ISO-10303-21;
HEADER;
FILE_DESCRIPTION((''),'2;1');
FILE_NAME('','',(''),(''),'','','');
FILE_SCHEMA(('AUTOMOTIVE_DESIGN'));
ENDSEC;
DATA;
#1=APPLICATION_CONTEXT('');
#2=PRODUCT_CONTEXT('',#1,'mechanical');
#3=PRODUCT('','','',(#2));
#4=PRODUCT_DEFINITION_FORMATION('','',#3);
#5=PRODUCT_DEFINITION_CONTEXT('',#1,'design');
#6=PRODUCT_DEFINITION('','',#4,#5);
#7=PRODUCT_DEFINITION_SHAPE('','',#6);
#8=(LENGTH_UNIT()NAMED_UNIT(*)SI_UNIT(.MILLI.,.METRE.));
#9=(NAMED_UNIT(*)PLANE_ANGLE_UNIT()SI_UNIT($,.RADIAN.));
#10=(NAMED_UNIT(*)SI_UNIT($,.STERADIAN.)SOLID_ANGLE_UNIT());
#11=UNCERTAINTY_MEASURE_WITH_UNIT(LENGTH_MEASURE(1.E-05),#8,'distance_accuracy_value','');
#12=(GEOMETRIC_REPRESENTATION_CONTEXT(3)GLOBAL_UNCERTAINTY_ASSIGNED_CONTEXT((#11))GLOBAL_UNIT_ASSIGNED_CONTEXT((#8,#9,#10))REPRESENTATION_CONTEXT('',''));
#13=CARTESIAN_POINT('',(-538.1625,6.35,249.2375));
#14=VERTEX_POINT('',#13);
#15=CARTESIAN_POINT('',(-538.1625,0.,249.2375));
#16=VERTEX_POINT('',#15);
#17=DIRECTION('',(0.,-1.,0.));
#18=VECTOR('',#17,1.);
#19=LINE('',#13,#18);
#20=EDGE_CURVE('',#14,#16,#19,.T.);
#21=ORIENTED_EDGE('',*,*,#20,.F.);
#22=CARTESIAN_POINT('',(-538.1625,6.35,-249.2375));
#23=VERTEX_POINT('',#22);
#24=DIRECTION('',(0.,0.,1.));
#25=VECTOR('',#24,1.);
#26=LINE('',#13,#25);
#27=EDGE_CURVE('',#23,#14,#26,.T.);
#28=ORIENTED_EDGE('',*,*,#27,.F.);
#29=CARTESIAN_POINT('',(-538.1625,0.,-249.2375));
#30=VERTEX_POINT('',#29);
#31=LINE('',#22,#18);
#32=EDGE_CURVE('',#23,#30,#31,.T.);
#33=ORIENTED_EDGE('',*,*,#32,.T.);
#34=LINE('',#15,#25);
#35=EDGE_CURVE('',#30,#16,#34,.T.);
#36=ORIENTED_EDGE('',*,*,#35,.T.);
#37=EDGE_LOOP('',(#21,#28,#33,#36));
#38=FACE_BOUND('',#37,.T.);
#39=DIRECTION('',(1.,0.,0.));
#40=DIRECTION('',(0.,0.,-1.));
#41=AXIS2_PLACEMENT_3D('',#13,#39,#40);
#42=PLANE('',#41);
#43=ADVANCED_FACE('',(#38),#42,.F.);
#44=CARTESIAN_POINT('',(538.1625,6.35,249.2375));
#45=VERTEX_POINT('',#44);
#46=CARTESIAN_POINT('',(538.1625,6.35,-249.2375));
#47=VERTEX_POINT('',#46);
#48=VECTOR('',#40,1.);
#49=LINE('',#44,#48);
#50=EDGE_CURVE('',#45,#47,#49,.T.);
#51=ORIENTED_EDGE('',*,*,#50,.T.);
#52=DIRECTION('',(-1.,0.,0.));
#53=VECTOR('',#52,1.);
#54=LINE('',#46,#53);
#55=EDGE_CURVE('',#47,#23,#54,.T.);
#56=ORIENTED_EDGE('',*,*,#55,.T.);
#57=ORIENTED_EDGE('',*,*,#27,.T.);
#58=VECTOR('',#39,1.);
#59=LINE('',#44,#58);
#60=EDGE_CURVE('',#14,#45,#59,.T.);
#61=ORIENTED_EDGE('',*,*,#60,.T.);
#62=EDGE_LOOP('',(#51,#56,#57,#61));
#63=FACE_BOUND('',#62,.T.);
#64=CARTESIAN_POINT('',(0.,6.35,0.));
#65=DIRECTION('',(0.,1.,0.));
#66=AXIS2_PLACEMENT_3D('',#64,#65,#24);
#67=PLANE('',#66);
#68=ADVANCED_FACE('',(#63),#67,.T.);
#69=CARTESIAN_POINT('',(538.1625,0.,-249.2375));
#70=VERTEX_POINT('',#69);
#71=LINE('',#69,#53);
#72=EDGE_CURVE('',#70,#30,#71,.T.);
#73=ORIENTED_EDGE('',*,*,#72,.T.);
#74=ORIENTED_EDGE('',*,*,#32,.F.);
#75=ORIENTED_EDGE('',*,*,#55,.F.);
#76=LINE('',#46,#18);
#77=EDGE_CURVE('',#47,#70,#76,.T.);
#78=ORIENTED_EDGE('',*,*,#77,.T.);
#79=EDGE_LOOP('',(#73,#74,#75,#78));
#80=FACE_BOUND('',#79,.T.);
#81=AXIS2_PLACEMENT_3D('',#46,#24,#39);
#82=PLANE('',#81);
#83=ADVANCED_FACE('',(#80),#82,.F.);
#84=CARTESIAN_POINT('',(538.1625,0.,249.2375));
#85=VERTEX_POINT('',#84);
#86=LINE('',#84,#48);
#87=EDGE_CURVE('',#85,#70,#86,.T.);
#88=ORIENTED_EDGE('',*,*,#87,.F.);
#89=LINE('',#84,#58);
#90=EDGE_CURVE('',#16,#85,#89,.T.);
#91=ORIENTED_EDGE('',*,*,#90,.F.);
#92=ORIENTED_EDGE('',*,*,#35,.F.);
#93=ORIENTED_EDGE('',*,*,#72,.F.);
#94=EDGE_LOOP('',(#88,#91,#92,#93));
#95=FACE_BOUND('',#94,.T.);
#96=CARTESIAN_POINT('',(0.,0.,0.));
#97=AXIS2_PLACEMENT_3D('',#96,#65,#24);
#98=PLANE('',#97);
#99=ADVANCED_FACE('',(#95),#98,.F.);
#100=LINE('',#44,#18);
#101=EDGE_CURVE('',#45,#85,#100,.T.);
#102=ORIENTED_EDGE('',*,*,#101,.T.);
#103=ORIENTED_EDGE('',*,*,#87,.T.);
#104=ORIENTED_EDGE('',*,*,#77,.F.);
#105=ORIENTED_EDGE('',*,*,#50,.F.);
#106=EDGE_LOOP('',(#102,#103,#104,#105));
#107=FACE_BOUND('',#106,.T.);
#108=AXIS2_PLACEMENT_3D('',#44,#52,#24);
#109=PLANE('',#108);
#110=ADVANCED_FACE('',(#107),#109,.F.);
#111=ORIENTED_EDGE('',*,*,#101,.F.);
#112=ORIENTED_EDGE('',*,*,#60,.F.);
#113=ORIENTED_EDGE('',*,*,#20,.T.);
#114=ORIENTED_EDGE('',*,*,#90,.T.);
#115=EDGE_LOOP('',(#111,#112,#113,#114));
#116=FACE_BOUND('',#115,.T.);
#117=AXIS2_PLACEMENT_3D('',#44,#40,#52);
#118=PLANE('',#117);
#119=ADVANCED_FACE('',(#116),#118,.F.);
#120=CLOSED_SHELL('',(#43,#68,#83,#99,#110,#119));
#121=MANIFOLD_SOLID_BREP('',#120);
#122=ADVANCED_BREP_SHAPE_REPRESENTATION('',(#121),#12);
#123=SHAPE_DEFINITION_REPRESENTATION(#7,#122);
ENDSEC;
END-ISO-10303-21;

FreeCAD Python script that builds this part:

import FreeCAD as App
import Part
import Sketcher
Q = App.Units.Quantity


def add_polygon(sketch, points):
    """Adds a closed chain of lines whose ends are joined by coincident constraints."""
    first, n = sketch.GeometryCount, len(points)
    for a, b in zip(points, points[1:] + points[:1]):
        sketch.addGeometry(Part.LineSegment(App.Vector(*a, 0), App.Vector(*b, 0)), False)
    for i in range(n):
        sketch.addConstraint(Sketcher.Constraint("Coincident", first + i, 2, first + (i + 1) % n, 1))

doc = App.newDocument("Part")
body = doc.addObject("PartDesign::Body", "Body")

# Sketch on XZ plane
sketch1 = body.newObject("Sketcher::SketchObject", "Sketch")
sketch1.AttachmentSupport = (doc.getObject("XZ_Plane"), [""])
sketch1.MapMode = "FlatFace"
add_polygon(sketch1, [(-538.1625, -249.2375), (-538.1625, 249.2375), (538.1625, 249.2375), (538.1625, -249.2375)])  # lines 0-3
sketch1.addConstraint([
    Sketcher.Constraint("Vertical", 0),
    Sketcher.Constraint("Horizontal", 1),
    Sketcher.Constraint("Vertical", 2),
    Sketcher.Constraint("Horizontal", 3),
    Sketcher.Constraint("Symmetric", 0, 2, 2, 2, -1, 1),
    Sketcher.Constraint("DistanceX", 1, 1, 1, 2, Q("42.375 in")),
    Sketcher.Constraint("DistanceY", 0, 1, 0, 2, Q("19.625 in")),
])
pad1 = body.newObject("PartDesign::Pad", "Pad")
pad1.Profile = sketch1
pad1.Length = Q("0.25 in")
pad1.Reversed = True

doc.recompute()
